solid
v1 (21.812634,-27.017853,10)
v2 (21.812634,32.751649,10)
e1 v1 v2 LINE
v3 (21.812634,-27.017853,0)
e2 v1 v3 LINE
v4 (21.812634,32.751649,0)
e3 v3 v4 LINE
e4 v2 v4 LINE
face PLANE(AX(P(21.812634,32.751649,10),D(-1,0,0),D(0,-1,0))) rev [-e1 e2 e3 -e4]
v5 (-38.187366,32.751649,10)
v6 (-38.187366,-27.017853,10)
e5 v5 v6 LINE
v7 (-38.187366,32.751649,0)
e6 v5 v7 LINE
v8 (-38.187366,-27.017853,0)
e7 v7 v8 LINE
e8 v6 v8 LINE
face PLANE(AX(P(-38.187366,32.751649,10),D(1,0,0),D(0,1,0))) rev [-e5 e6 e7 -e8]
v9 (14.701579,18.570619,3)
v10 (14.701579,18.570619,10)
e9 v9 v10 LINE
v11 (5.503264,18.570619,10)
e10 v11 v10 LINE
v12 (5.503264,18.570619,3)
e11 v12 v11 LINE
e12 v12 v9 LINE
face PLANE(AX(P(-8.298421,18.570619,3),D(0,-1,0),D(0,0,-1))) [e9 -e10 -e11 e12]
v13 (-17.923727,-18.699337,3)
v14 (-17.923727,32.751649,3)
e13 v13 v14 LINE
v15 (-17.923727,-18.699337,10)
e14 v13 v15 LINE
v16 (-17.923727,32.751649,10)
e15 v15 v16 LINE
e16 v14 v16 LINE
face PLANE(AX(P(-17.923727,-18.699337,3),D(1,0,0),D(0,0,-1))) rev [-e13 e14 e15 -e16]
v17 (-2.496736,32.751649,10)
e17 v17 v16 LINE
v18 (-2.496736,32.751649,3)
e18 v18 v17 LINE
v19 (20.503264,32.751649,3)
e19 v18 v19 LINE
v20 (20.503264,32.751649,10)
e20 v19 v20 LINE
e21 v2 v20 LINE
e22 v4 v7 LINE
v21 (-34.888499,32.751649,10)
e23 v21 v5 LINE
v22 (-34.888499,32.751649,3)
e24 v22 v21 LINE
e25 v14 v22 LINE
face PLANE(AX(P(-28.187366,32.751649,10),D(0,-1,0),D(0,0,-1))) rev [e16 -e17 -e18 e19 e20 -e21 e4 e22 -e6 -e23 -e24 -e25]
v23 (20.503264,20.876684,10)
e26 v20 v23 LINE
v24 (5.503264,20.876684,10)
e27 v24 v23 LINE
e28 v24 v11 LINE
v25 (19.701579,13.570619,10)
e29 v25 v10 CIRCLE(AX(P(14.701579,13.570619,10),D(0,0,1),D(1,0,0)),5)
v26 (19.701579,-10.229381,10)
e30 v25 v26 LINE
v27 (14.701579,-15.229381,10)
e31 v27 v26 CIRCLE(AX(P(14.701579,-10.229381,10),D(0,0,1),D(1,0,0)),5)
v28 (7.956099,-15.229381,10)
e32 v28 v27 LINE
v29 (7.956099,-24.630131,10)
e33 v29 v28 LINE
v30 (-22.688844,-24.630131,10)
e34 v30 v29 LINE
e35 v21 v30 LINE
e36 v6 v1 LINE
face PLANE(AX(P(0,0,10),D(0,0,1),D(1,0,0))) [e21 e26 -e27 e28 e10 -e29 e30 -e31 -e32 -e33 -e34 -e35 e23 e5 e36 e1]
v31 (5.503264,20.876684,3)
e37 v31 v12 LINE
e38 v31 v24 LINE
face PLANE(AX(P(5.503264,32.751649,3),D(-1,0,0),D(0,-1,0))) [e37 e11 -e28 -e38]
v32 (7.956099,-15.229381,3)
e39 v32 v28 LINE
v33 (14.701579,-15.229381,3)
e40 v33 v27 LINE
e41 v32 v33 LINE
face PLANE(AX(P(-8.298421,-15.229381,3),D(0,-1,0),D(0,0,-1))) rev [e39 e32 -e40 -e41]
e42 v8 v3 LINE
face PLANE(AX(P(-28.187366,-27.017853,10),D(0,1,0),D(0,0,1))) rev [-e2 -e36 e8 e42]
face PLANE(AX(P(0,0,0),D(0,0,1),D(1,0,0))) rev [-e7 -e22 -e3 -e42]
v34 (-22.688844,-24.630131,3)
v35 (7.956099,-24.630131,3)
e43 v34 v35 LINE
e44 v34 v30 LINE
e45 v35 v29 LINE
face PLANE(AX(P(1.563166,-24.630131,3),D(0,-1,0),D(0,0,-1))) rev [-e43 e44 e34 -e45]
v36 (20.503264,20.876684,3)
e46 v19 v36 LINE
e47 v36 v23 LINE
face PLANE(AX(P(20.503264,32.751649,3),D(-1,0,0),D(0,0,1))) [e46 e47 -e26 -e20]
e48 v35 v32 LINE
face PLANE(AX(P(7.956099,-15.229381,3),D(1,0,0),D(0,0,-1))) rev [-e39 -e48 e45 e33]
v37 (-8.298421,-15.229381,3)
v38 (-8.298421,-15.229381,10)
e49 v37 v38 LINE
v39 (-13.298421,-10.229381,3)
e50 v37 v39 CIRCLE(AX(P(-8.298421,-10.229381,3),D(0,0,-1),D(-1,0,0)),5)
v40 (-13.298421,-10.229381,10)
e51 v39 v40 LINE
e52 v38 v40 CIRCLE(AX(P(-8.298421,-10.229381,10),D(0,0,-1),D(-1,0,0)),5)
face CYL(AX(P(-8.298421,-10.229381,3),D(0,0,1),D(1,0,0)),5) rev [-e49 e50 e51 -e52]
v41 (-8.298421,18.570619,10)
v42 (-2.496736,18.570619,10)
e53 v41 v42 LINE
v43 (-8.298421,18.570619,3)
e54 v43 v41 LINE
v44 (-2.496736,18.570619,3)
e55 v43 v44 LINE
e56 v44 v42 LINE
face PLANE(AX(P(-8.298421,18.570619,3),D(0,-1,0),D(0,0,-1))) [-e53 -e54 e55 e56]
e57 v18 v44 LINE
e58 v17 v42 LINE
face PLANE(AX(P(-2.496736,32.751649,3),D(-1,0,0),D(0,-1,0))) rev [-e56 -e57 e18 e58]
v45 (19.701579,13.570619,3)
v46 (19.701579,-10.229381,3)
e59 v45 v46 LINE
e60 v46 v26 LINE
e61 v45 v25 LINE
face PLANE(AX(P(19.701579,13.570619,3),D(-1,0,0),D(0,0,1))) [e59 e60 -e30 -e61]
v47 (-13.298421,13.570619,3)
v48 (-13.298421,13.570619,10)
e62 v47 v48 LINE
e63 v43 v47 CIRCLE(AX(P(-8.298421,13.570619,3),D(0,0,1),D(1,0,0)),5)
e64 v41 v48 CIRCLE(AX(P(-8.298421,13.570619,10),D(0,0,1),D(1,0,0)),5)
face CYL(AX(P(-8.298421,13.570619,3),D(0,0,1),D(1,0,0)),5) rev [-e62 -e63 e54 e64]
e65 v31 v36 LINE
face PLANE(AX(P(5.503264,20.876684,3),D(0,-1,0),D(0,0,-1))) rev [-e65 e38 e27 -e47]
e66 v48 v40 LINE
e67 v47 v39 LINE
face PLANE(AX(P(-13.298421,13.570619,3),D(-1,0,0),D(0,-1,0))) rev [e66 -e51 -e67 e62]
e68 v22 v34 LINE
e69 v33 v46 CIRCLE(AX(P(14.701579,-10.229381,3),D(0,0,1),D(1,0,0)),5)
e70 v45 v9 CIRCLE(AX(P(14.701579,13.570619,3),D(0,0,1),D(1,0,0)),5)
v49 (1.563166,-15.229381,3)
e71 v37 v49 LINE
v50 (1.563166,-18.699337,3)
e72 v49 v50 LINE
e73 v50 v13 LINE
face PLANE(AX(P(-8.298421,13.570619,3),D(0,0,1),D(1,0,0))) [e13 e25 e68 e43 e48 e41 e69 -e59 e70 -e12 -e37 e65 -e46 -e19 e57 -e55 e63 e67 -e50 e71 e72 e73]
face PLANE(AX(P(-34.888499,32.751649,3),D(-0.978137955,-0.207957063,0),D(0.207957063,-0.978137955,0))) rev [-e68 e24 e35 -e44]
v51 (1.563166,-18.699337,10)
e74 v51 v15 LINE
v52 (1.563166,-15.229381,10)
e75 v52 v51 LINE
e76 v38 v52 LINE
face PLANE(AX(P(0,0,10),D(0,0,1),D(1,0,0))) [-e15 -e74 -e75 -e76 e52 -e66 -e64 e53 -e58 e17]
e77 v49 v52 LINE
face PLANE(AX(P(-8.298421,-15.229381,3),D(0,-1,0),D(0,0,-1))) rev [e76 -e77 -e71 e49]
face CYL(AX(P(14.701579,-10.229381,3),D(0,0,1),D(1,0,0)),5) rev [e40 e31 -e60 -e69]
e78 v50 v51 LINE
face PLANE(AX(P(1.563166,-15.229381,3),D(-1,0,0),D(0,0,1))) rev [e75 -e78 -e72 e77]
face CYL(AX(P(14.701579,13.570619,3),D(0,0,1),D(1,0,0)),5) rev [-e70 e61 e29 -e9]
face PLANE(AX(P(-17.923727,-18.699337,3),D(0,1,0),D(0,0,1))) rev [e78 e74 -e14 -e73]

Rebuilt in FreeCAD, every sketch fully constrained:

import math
import FreeCAD as App
import Part
import Sketcher

V = App.Vector


def add_polygon(sketch, points):
    """Adds a closed chain of lines whose ends are joined by coincident constraints."""
    first, n = sketch.GeometryCount, len(points)
    for a, b in zip(points, points[1:] + points[:1]):
        sketch.addGeometry(Part.LineSegment(App.Vector(*a, 0), App.Vector(*b, 0)), False)
    for i in range(n):
        sketch.addConstraint(Sketcher.Constraint("Coincident", first + i, 2, first + (i + 1) % n, 1))

doc = App.newDocument("Part")
body = doc.addObject("PartDesign::Body", "Body")

sketch1 = doc.addObject("Sketcher::SketchObject", "Sketch")
body.addObject(sketch1)
sketch1.AttachmentSupport = (doc.XY_Plane, [""])
sketch1.MapMode = "FlatFace"
add_polygon(sketch1, [(21.812634, 32.751649), (-38.187366, 32.751649), (-38.187366, -27.017853), (21.812634, -27.017853)])
sketch1.addConstraint([
    Sketcher.Constraint("Horizontal", 0),
    Sketcher.Constraint("Vertical", 1),
    Sketcher.Constraint("Horizontal", 2),
    Sketcher.Constraint("Vertical", 3),
    Sketcher.Constraint("DistanceX", 0, 2, 0, 1, 60.0),
    Sketcher.Constraint("DistanceY", 1, 2, 1, 1, 59.769502),
    Sketcher.Constraint("DistanceY", -1, 1, 0, 2, 32.751649),
    Sketcher.Constraint("DistanceX", 0, 2, -1, 1, 38.187366),
])
pad1 = doc.addObject("PartDesign::Pad", "Pad")
body.addObject(pad1)
pad1.Profile = sketch1
pad1.Length = 10

sketch2 = doc.addObject("Sketcher::SketchObject", "Sketch001")
body.addObject(sketch2)
sketch2.AttachmentSupport = (doc.XY_Plane, [""])
sketch2.MapMode = "FlatFace"
sketch2.AttachmentOffset = App.Placement(V(0, 0, 10), App.Rotation())
sketch2.addGeometry([
    Part.LineSegment(V(14.701579, 18.570619, 0), V(-8.298421, 18.570619, 0)),
    Part.ArcOfCircle(Part.Circle(V(-8.298421, 13.570619, 0), V(0, 0, 1), 5), math.radians(90), math.radians(180)),
    Part.LineSegment(V(-13.298421, 13.570619, 0), V(-13.298421, -10.229381, 0)),
    Part.ArcOfCircle(Part.Circle(V(-8.298421, -10.229381, 0), V(0, 0, 1), 5), math.radians(180), math.radians(270)),
    Part.LineSegment(V(-8.298421, -15.229381, 0), V(14.701579, -15.229381, 0)),
    Part.ArcOfCircle(Part.Circle(V(14.701579, -10.229381, 0), V(0, 0, 1), 5), math.radians(-90), math.radians(0)),
    Part.LineSegment(V(19.701579, -10.229381, 0), V(19.701579, 13.570619, 0)),
    Part.ArcOfCircle(Part.Circle(V(14.701579, 13.570619, 0), V(0, 0, 1), 5), math.radians(0), math.radians(90)),
], False)
sketch2.addConstraint([
    Sketcher.Constraint("Tangent", 0, 2, 1, 1),
    Sketcher.Constraint("Tangent", 1, 2, 2, 1),
    Sketcher.Constraint("Tangent", 2, 2, 3, 1),
    Sketcher.Constraint("Tangent", 3, 2, 4, 1),
    Sketcher.Constraint("Tangent", 4, 2, 5, 1),
    Sketcher.Constraint("Tangent", 5, 2, 6, 1),
    Sketcher.Constraint("Tangent", 6, 2, 7, 1),
    Sketcher.Constraint("Tangent", 7, 2, 0, 1),
    Sketcher.Constraint("Horizontal", 0),
    Sketcher.Constraint("Vertical", 2),
    Sketcher.Constraint("Horizontal", 4),
    Sketcher.Constraint("Vertical", 6),
    Sketcher.Constraint("Equal", 1, 3),
    Sketcher.Constraint("Equal", 3, 5),
    Sketcher.Constraint("Equal", 5, 7),
    Sketcher.Constraint("Radius", 1, 5.0),
    Sketcher.Constraint("DistanceX", 0, 2, 0, 1, 23.0),
    Sketcher.Constraint("DistanceY", 2, 2, 2, 1, 23.8),
    Sketcher.Constraint("DistanceX", 1, 3, -1, 1, 8.298421),
    Sketcher.Constraint("DistanceY", -1, 1, 1, 3, 13.570619),
])
pocket1 = doc.addObject("PartDesign::Pocket", "Pocket")
body.addObject(pocket1)
pocket1.Profile = sketch2
pocket1.Length = 7

sketch3 = doc.addObject("Sketcher::SketchObject", "Sketch002")
body.addObject(sketch3)
sketch3.AttachmentSupport = (doc.XY_Plane, [""])
sketch3.MapMode = "FlatFace"
sketch3.AttachmentOffset = App.Placement(V(0, 0, 10), App.Rotation())
add_polygon(sketch3, [(-2.496736, 32.751649), (-2.496736, 18.570619), (5.503264, 18.570619), (5.503264, 20.876684), (20.503264, 20.876684), (20.503264, 32.751649)])
sketch3.addConstraint([
    Sketcher.Constraint("Vertical", 0),
    Sketcher.Constraint("Horizontal", 1),
    Sketcher.Constraint("Vertical", 2),
    Sketcher.Constraint("Horizontal", 3),
    Sketcher.Constraint("Vertical", 4),
    Sketcher.Constraint("Horizontal", 5),
    Sketcher.Constraint("DistanceX", 1, 1, 1, 2, 8.0),
    Sketcher.Constraint("DistanceX", 3, 1, 3, 2, 15.0),
    Sketcher.Constraint("DistanceY", 0, 2, 0, 1, 14.18103),
    Sketcher.Constraint("DistanceY", 2, 1, 2, 2, 2.306065),
    Sketcher.Constraint("DistanceY", -1, 1, 0, 2, 18.570619),
    Sketcher.Constraint("DistanceX", 0, 2, -1, 1, 2.496736),
])
pocket2 = doc.addObject("PartDesign::Pocket", "Pocket001")
body.addObject(pocket2)
pocket2.Profile = sketch3
pocket2.Length = 7

sketch4 = doc.addObject("Sketcher::SketchObject", "Sketch003")
body.addObject(sketch4)
sketch4.AttachmentSupport = (doc.XY_Plane, [""])
sketch4.MapMode = "FlatFace"
sketch4.AttachmentOffset = App.Placement(V(0, 0, 10), App.Rotation())
add_polygon(sketch4, [(7.956099, -15.229381), (1.563166, -15.229381), (1.563166, -18.699337), (-17.923727, -18.699337), (-17.923727, 32.751649), (-34.888499, 32.751649), (-22.688844, -24.630131), (7.956099, -24.630131)])
sketch4.addConstraint([
    Sketcher.Constraint("Horizontal", 0),
    Sketcher.Constraint("Vertical", 1),
    Sketcher.Constraint("Horizontal", 2),
    Sketcher.Constraint("Vertical", 3),
    Sketcher.Constraint("Horizontal", 4),
    Sketcher.Constraint("Horizontal", 6),
    Sketcher.Constraint("Vertical", 7),
    Sketcher.Constraint("Distance", 5, 58.664301),
    Sketcher.Constraint("DistanceY", 7, 1, 7, 2, 9.40075),
    Sketcher.Constraint("DistanceX", 4, 2, -1, 1, 34.888499),
    Sketcher.Constraint("DistanceX", -1, 1, 6, 2, 7.956099),
    Sketcher.Constraint("DistanceX", 0, 2, 0, 1, 6.392933),
    Sketcher.Constraint("DistanceX", 2, 2, 2, 1, 19.486893),
    Sketcher.Constraint("DistanceX", 6, 1, 6, 2, 30.644943),
    Sketcher.Constraint("DistanceY", 1, 2, 1, 1, 3.469956),
    Sketcher.Constraint("DistanceY", 0, 2, -1, 1, 15.229381),
])
pocket3 = doc.addObject("PartDesign::Pocket", "Pocket002")
body.addObject(pocket3)
pocket3.Profile = sketch4
pocket3.Length = 7

doc.recompute()
